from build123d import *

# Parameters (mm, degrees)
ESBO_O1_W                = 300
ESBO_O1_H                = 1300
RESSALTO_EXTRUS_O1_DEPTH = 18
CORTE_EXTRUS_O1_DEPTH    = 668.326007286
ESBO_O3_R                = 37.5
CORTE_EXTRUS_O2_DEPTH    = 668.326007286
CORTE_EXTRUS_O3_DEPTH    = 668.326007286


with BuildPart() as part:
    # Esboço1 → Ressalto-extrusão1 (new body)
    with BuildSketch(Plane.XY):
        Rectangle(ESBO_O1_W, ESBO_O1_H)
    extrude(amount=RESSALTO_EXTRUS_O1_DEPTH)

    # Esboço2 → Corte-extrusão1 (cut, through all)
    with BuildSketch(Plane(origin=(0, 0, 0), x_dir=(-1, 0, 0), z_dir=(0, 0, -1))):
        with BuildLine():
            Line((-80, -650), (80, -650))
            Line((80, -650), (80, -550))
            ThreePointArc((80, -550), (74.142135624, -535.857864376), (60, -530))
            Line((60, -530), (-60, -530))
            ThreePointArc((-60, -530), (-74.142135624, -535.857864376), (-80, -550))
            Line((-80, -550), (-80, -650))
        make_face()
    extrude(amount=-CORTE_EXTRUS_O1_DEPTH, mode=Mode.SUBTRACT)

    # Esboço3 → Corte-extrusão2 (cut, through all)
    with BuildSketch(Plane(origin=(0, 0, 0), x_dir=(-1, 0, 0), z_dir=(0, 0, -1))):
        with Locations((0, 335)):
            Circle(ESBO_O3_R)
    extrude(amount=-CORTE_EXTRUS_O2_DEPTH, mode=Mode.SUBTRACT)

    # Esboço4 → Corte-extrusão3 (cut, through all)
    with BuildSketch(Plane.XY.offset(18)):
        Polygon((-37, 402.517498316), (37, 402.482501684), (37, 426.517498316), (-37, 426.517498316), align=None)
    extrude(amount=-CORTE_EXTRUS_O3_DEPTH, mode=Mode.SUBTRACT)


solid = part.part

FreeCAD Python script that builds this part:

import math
import FreeCAD as App
import Part
import Sketcher
from FreeCAD import Vector
Q = App.Units.Quantity


def add_polygon(sketch, points):
    """Adds a closed chain of lines whose ends are joined by coincident constraints."""
    first, n = sketch.GeometryCount, len(points)
    for a, b in zip(points, points[1:] + points[:1]):
        sketch.addGeometry(Part.LineSegment(App.Vector(*a, 0), App.Vector(*b, 0)), False)
    for i in range(n):
        sketch.addConstraint(Sketcher.Constraint("Coincident", first + i, 2, first + (i + 1) % n, 1))

doc = App.newDocument("Part")
body = doc.addObject("PartDesign::Body", "Body")

sketch1 = doc.addObject("Sketcher::SketchObject", "Sketch")
body.addObject(sketch1)
sketch1.AttachmentSupport = (doc.XY_Plane, [""])
sketch1.MapMode = "FlatFace"
add_polygon(sketch1, [(-150, 650), (-150, -650), (150, -650), (150, 650)])
sketch1.addConstraint([
    Sketcher.Constraint("Vertical", 0),
    Sketcher.Constraint("Horizontal", 1),
    Sketcher.Constraint("Vertical", 2),
    Sketcher.Constraint("Horizontal", 3),
    Sketcher.Constraint("Symmetric", 0, 2, 2, 2, -1, 1),
    Sketcher.Constraint("DistanceX", 1, 1, 1, 2, Q("300 mm")),
    Sketcher.Constraint("DistanceY", 0, 2, 0, 1, Q("1300 mm")),
])
pad1 = doc.addObject("PartDesign::Pad", "Pad")
body.addObject(pad1)
pad1.Profile = sketch1
pad1.Length = 18

sketch2 = doc.addObject("Sketcher::SketchObject", "Sketch001")
body.addObject(sketch2)
sketch2.AttachmentSupport = (doc.XY_Plane, [""])
sketch2.MapMode = "FlatFace"
sketch2.addGeometry([
    Part.LineSegment(Vector(80, -650, 0), Vector(-80, -650, 0)),
    Part.LineSegment(Vector(-80, -650, 0), Vector(-80, -550, 0)),
    Part.ArcOfCircle(Part.Circle(Vector(-60, -550, 0), Vector(0, 0, 1), 20), math.radians(90), math.radians(180)),
    Part.LineSegment(Vector(-60, -530, 0), Vector(60, -530, 0)),
    Part.ArcOfCircle(Part.Circle(Vector(60, -550, 0), Vector(0, 0, 1), 20), math.radians(0), math.radians(90)),
    Part.LineSegment(Vector(80, -550, 0), Vector(80, -650, 0)),
], False)
sketch2.addConstraint([
    Sketcher.Constraint("Coincident", 0, 2, 1, 1),
    Sketcher.Constraint("Tangent", 1, 2, 2, 2),
    Sketcher.Constraint("Tangent", 2, 1, 3, 1),
    Sketcher.Constraint("Tangent", 3, 2, 4, 2),
    Sketcher.Constraint("Tangent", 4, 1, 5, 1),
    Sketcher.Constraint("Coincident", 5, 2, 0, 1),
    Sketcher.Constraint("Horizontal", 0),
    Sketcher.Constraint("Vertical", 1),
    Sketcher.Constraint("Horizontal", 3),
    Sketcher.Constraint("Vertical", 5),
    Sketcher.Constraint("Equal", 2, 4),
    Sketcher.Constraint("Radius", 2, Q("20 mm")),
    Sketcher.Constraint("DistanceX", 0, 2, 0, 1, Q("160 mm")),
    Sketcher.Constraint("DistanceY", 1, 1, 1, 2, Q("100 mm")),
    Sketcher.Constraint("DistanceX", 2, 3, -1, 1, Q("60 mm")),
    Sketcher.Constraint("DistanceY", 2, 3, -1, 1, Q("550 mm")),
])
pocket1 = doc.addObject("PartDesign::Pocket", "Pocket")
body.addObject(pocket1)
pocket1.Profile = sketch2
pocket1.Type = "ThroughAll"
pocket1.Reversed = True

sketch3 = doc.addObject("Sketcher::SketchObject", "Sketch002")
body.addObject(sketch3)
sketch3.AttachmentSupport = (doc.XY_Plane, [""])
sketch3.MapMode = "FlatFace"
sketch3.addGeometry(Part.Circle(Vector(0, 335, 0), Vector(0, 0, 1), 37.5), False)
sketch3.addConstraint([
    Sketcher.Constraint("PointOnObject", 0, 3, -2),
    Sketcher.Constraint("Diameter", 0, Q("75 mm")),
    Sketcher.Constraint("DistanceY", -1, 1, 0, 3, Q("335 mm")),
])
pocket2 = doc.addObject("PartDesign::Pocket", "Pocket001")
body.addObject(pocket2)
pocket2.Profile = sketch3
pocket2.Type = "ThroughAll"
pocket2.Reversed = True

sketch4 = doc.addObject("Sketcher::SketchObject", "Sketch003")
body.addObject(sketch4)
sketch4.AttachmentSupport = (doc.XY_Plane, [""])
sketch4.MapMode = "FlatFace"
sketch4.AttachmentOffset = App.Placement(Vector(0, 0, 18), App.Rotation())
add_polygon(sketch4, [(-37, 402.517498), (37, 402.482502), (37, 426.517498), (-37, 426.517498)])
sketch4.addConstraint([
    Sketcher.Constraint("Vertical", 1),
    Sketcher.Constraint("Horizontal", 2),
    Sketcher.Constraint("Vertical", 3),
    Sketcher.Constraint("DistanceX", 2, 2, 2, 1, Q("74 mm")),
    Sketcher.Constraint("DistanceY", 3, 2, 3, 1, Q("24 mm")),
    Sketcher.Constraint("DistanceX", -1, 1, 0, 2, Q("37 mm")),
    Sketcher.Constraint("DistanceY", -1, 1, 0, 2, Q("402.482502 mm")),
    Sketcher.Constraint("DistanceY", -1, 1, 1, 2, Q("426.517498 mm")),
])
pocket3 = doc.addObject("PartDesign::Pocket", "Pocket002")
body.addObject(pocket3)
pocket3.Profile = sketch4
pocket3.Type = "ThroughAll"

doc.recompute()
